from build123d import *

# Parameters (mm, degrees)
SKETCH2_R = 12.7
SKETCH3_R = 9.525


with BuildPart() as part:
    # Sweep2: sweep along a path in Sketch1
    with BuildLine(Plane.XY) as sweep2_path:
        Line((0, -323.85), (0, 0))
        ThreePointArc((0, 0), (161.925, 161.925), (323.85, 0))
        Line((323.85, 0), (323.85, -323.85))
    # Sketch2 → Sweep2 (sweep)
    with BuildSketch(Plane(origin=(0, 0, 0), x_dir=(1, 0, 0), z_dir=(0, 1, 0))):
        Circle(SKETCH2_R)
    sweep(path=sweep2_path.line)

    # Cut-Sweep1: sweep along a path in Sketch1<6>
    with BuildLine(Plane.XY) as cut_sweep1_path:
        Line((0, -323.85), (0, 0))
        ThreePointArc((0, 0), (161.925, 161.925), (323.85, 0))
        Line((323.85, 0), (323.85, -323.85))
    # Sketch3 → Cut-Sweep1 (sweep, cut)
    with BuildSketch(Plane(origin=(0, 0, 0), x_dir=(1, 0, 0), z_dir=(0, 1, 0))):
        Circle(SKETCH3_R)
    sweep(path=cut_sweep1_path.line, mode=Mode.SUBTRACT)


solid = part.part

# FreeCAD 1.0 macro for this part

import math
import FreeCAD as App
import Part
import Sketcher
from FreeCAD import Vector
Q = App.Units.Quantity

doc = App.newDocument("Part")
body = doc.addObject("PartDesign::Body", "Body")

# Sketch on XZ plane
sketch1 = body.newObject("Sketcher::SketchObject", "Sketch")
sketch1.AttachmentSupport = (doc.getObject("XZ_Plane"), [""])
sketch1.MapMode = "FlatFace"
sketch1.addGeometry(Part.Circle(Vector(0, 0, 0), Vector(0, 0, 1), 13), False)
sketch1.addConstraint(Sketcher.Constraint("Coincident", 0, 3, -1, 1))
sketch1.addConstraint(Sketcher.Constraint("Diameter", 0, Q("1 in")))

# Sketch on XY plane
sketch2 = body.newObject("Sketcher::SketchObject", "Sketch001")
sketch2.AttachmentSupport = (doc.getObject("XY_Plane"), [""])
sketch2.MapMode = "FlatFace"
sketch2.addGeometry(Part.LineSegment(Vector(0, -324, 0), Vector(0, 0, 0)), False)
sketch2.addGeometry(Part.ArcOfCircle(Part.Circle(Vector(162, 0, 0), Vector(0, 0, 1), 162), math.radians(0), math.radians(180)), False)
sketch2.addGeometry(Part.LineSegment(Vector(324, 0, 0), Vector(324, -324, 0)), False)
sketch2.addConstraint(Sketcher.Constraint("Tangent", 0, 2, 1, 2))
sketch2.addConstraint(Sketcher.Constraint("Tangent", 1, 1, 2, 1))
sketch2.addConstraint(Sketcher.Constraint("Vertical", 0))
sketch2.addConstraint(Sketcher.Constraint("Vertical", 2))
sketch2.addConstraint(Sketcher.Constraint("Coincident", 0, 2, -1, 1))
sketch2.addConstraint(Sketcher.Constraint("Horizontal", 0, 1, 2, 2))
sketch2.addConstraint(Sketcher.Constraint("Radius", 1, Q("6.375 in")))
sketch2.addConstraint(Sketcher.Constraint("DistanceY", 0, 1, 0, 2, Q("12.75 in")))
doc.recompute()

additivepipe = body.newObject("PartDesign::AdditivePipe", "AdditivePipe")
additivepipe.Profile = sketch1
additivepipe.Spine = (sketch2, ["Edge1", "Edge2", "Edge3"])

# Sketch on XZ plane
sketch3 = body.newObject("Sketcher::SketchObject", "Sketch002")
sketch3.AttachmentSupport = (doc.getObject("XZ_Plane"), [""])
sketch3.MapMode = "FlatFace"
sketch3.addGeometry(Part.Circle(Vector(0, 0, 0), Vector(0, 0, 1), 10), False)
sketch3.addConstraint(Sketcher.Constraint("Coincident", 0, 3, -1, 1))
sketch3.addConstraint(Sketcher.Constraint("Diameter", 0, Q("0.75 in")))

# Sketch on XY plane
sketch4 = body.newObject("Sketcher::SketchObject", "Sketch003")
sketch4.AttachmentSupport = (doc.getObject("XY_Plane"), [""])
sketch4.MapMode = "FlatFace"
sketch4.addGeometry(Part.LineSegment(Vector(0, -324, 0), Vector(0, 0, 0)), False)
sketch4.addGeometry(Part.ArcOfCircle(Part.Circle(Vector(162, 0, 0), Vector(0, 0, 1), 162), math.radians(0), math.radians(180)), False)
sketch4.addGeometry(Part.LineSegment(Vector(324, 0, 0), Vector(324, -324, 0)), False)
sketch4.addConstraint(Sketcher.Constraint("Tangent", 0, 2, 1, 2))
sketch4.addConstraint(Sketcher.Constraint("Tangent", 1, 1, 2, 1))
sketch4.addConstraint(Sketcher.Constraint("Vertical", 0))
sketch4.addConstraint(Sketcher.Constraint("Vertical", 2))
sketch4.addConstraint(Sketcher.Constraint("Coincident", 0, 2, -1, 1))
sketch4.addConstraint(Sketcher.Constraint("Horizontal", 0, 1, 2, 2))
sketch4.addConstraint(Sketcher.Constraint("Radius", 1, Q("6.375 in")))
sketch4.addConstraint(Sketcher.Constraint("DistanceY", 0, 1, 0, 2, Q("12.75 in")))
doc.recompute()

subtractivepipe = body.newObject("PartDesign::SubtractivePipe", "SubtractivePipe")
subtractivepipe.Profile = sketch3
subtractivepipe.Spine = (sketch4, ["Edge1", "Edge2", "Edge3"])

doc.recompute()
